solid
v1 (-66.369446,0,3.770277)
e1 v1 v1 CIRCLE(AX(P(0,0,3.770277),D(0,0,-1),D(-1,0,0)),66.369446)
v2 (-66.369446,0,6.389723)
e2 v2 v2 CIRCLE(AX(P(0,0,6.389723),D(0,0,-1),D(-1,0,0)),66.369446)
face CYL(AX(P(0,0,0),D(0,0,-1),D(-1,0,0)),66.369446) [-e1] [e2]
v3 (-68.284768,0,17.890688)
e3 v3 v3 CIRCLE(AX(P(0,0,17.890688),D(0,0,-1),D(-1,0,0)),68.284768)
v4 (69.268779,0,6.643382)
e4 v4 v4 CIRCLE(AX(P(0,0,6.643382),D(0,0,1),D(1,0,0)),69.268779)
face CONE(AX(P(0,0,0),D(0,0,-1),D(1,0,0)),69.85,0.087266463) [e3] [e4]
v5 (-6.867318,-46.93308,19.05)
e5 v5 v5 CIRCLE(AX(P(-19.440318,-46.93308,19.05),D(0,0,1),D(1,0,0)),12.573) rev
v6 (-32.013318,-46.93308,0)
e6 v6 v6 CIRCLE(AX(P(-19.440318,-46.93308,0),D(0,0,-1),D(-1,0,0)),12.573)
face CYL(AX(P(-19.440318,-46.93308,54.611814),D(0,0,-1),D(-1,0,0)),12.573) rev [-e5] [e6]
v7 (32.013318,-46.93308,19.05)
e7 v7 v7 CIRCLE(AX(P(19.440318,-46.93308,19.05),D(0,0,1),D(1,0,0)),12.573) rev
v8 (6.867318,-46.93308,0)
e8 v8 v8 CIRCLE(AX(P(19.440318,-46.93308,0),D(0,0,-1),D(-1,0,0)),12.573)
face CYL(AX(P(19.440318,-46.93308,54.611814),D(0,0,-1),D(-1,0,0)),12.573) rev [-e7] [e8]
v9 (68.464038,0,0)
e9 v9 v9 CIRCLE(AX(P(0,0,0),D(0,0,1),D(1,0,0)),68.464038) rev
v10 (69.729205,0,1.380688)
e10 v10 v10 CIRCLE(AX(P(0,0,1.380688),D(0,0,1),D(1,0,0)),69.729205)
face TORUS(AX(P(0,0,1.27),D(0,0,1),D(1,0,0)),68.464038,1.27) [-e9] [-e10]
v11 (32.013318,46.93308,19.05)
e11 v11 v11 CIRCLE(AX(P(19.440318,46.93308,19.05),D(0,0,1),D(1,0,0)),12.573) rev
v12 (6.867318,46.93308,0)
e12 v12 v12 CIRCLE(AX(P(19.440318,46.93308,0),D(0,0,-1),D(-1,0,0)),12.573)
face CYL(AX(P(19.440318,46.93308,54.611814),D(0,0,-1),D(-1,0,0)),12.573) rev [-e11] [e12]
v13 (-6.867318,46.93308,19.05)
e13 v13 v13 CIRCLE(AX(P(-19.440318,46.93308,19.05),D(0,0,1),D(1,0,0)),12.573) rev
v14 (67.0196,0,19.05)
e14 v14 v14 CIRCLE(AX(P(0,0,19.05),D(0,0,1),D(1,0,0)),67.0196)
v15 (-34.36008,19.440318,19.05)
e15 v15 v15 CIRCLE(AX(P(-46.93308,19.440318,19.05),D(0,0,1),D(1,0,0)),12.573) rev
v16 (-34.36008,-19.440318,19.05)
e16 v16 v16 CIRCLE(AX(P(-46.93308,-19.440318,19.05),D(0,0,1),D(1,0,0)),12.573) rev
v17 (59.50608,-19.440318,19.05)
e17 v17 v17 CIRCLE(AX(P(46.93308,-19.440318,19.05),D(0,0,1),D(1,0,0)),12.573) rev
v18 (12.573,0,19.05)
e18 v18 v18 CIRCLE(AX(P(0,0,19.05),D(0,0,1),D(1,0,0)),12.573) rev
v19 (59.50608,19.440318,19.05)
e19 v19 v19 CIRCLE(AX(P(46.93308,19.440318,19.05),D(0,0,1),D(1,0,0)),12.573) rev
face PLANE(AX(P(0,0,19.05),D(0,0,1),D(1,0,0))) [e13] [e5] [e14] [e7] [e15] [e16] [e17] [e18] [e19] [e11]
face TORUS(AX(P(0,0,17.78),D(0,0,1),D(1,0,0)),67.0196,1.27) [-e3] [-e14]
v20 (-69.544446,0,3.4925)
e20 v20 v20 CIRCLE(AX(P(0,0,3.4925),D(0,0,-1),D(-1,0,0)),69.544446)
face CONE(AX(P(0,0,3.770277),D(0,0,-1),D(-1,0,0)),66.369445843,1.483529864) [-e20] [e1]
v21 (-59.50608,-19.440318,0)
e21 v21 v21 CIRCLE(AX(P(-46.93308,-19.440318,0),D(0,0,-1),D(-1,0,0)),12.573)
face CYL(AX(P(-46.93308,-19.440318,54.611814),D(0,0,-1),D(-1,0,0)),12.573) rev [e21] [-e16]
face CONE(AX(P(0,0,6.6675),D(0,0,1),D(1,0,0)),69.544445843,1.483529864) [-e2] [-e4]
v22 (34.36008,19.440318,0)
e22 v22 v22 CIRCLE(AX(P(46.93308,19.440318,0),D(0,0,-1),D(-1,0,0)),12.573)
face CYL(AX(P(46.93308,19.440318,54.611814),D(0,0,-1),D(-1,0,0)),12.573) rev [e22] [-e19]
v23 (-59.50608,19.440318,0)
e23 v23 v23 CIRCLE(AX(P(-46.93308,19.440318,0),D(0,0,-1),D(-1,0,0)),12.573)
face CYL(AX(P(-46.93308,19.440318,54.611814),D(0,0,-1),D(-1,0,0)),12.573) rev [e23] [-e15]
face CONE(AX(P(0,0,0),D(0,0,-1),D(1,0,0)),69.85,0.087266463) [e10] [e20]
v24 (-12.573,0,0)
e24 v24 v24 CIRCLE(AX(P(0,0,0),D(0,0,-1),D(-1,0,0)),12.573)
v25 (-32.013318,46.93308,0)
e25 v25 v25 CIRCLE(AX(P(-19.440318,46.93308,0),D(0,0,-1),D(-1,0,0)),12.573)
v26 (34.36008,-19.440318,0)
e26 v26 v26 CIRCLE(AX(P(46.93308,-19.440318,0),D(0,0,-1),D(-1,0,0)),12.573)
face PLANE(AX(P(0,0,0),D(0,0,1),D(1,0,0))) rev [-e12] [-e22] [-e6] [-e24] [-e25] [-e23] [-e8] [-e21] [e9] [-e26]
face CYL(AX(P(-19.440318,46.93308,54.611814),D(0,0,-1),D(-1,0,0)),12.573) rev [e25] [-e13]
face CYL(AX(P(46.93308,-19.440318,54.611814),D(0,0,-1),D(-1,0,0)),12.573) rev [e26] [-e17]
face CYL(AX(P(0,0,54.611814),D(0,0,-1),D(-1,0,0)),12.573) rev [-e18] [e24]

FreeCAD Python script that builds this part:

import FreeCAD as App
import Part
import Sketcher
Q = App.Units.Quantity


def edges_at(feature, points):
    """Names of the edges that pass closest to the given points."""
    edges = feature.Shape.Edges
    near = lambda p: min(range(len(edges)), key=lambda i: edges[i].distToShape(Part.Vertex(*p))[0])
    return sorted({f"Edge{near(p) + 1}" for p in points})


def add_polygon(sketch, points):
    """Adds a closed chain of lines whose ends are joined by coincident constraints."""
    first, n = sketch.GeometryCount, len(points)
    for a, b in zip(points, points[1:] + points[:1]):
        sketch.addGeometry(Part.LineSegment(App.Vector(*a, 0), App.Vector(*b, 0)), False)
    for i in range(n):
        sketch.addConstraint(Sketcher.Constraint("Coincident", first + i, 2, first + (i + 1) % n, 1))

doc = App.newDocument("Part")
body = doc.addObject("PartDesign::Body", "Body")

# Sketch on XY plane
sketch1 = doc.addObject("Sketcher::SketchObject", "Sketch")
body.addObject(sketch1)
sketch1.AttachmentSupport = (doc.XY_Plane, [""])
sketch1.MapMode = "FlatFace"
sketch1.addGeometry(Part.Circle(App.Vector(0, 0, 0), App.Vector(0, 0, 1), 70), False)
sketch1.addConstraint([
    Sketcher.Constraint("Coincident", 0, 3, -1, 1),
    Sketcher.Constraint("Diameter", 0, Q("5.5 in")),
])
pad1 = doc.addObject("PartDesign::Pad", "Pad")
body.addObject(pad1)
pad1.Profile = sketch1
pad1.Length = Q("0.75 in")
pad1.TaperAngle = -5
doc.recompute()

fillet = doc.addObject("PartDesign::Fillet", "Fillet")
body.addObject(fillet)
fillet.Base = (pad1, edges_at(pad1, [(-69.85, 0, 0), (-68.183, 0, 19.05)]))
fillet.Radius = Q("0.05 in")

# Sketch on XZ plane
sketch2 = doc.addObject("Sketcher::SketchObject", "Sketch001")
body.addObject(sketch2)
sketch2.AttachmentSupport = (doc.XZ_Plane, [""])
sketch2.MapMode = "FlatFace"
add_polygon(sketch2, [(-66.4, 6.4), (-66.4, 3.8), (-69.5, 3.5), (-69.5, 6.7)])  # lines 0-3
sketch2.addConstraint([
    Sketcher.Constraint("Vertical", 0),
    Sketcher.Constraint("Vertical", 2),
    Sketcher.Constraint("Equal", 1, 3),
    Sketcher.Constraint("Angle", 1, Q("-175 deg")),
    Sketcher.Constraint("DistanceY", 2, 1, 2, 2, Q("0.125 in")),
    Sketcher.Constraint("DistanceX", 1, 2, 0, 2, Q("0.125 in")),
    Sketcher.Constraint("DistanceY", -1, 1, 1, 2, Q("0.1375 in")),
    Sketcher.Constraint("DistanceX", 0, 2, -1, 1, 66.369446),
])
groove = doc.addObject("PartDesign::Groove", "Groove")
body.addObject(groove)
groove.Profile = sketch2
groove.ReferenceAxis = (sketch2, ["V_Axis"])
groove.Angle = 360

# Sketch on XY plane
sketch3 = doc.addObject("Sketcher::SketchObject", "Sketch002")
body.addObject(sketch3)
sketch3.AttachmentSupport = (doc.XY_Plane, [""])
sketch3.MapMode = "FlatFace"
sketch3.addGeometry([
    Part.Circle(App.Vector(19, 47, 0), App.Vector(0, 0, 1), 13),  # 0
    Part.Circle(App.Vector(-19, 47, 0), App.Vector(0, 0, 1), 13),  # 1
    Part.Circle(App.Vector(-47, 19, 0), App.Vector(0, 0, 1), 13),  # 2
    Part.Circle(App.Vector(-47, -19, 0), App.Vector(0, 0, 1), 13),  # 3
    Part.Circle(App.Vector(-19, -47, 0), App.Vector(0, 0, 1), 13),  # 4
    Part.Circle(App.Vector(19, -47, 0), App.Vector(0, 0, 1), 13),  # 5
    Part.Circle(App.Vector(47, -19, 0), App.Vector(0, 0, 1), 13),  # 6
    Part.Circle(App.Vector(47, 19, 0), App.Vector(0, 0, 1), 13),  # 7
    Part.Circle(App.Vector(0, 0, 0), App.Vector(0, 0, 1), 13),  # 8
], False)
sketch3.addConstraint([
    Sketcher.Constraint("Coincident", 8, 3, -1, 1),
    Sketcher.Constraint("Equal", 0, 1),
    Sketcher.Constraint("Equal", 1, 2),
    Sketcher.Constraint("Equal", 2, 3),
    Sketcher.Constraint("Equal", 3, 4),
    Sketcher.Constraint("Equal", 4, 5),
    Sketcher.Constraint("Equal", 5, 6),
    Sketcher.Constraint("Equal", 6, 7),
    Sketcher.Constraint("Equal", 7, 8),
    Sketcher.Constraint("Symmetric", 0, 3, 4, 3, -1, 1),
    Sketcher.Constraint("Symmetric", 1, 3, 5, 3, -1, 1),
    Sketcher.Constraint("Symmetric", 2, 3, 6, 3, -1, 1),
    Sketcher.Constraint("Symmetric", 3, 3, 7, 3, -1, 1),
    Sketcher.Constraint("Symmetric", 0, 3, 1, 3, -2),
    Sketcher.Constraint("Symmetric", 3, 3, 6, 3, -2),
    Sketcher.Constraint("Diameter", 0, Q("0.99 in")),
    Sketcher.Constraint("DistanceX", 2, 3, 0, 3, 66.373399),
    Sketcher.Constraint("DistanceY", 3, 3, 1, 3, 66.373399),
    Sketcher.Constraint("DistanceX", -1, 1, 0, 3, 19.440318),
    Sketcher.Constraint("DistanceY", -1, 1, 0, 3, 46.93308),
])
pocket1 = doc.addObject("PartDesign::Pocket", "Pocket")
body.addObject(pocket1)
pocket1.Profile = sketch3
pocket1.Length = Q("0.75 in")
pocket1.Reversed = True

doc.recompute()
